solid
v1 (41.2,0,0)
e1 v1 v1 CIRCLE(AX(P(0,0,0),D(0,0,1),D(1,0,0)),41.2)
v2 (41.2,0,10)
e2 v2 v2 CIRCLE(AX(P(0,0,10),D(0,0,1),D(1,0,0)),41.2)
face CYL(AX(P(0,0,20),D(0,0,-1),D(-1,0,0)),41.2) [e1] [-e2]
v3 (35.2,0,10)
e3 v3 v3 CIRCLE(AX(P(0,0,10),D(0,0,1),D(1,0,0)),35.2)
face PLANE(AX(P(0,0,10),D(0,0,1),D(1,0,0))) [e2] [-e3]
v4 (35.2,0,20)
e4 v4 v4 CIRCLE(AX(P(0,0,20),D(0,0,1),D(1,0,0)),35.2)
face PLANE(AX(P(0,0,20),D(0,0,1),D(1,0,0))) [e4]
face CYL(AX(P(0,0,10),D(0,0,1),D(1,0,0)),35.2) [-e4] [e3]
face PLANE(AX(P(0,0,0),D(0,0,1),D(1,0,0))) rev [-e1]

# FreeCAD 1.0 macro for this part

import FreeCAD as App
import Part
import Sketcher

V = App.Vector


def add_polygon(sketch, points):
    """Adds a closed chain of lines whose ends are joined by coincident constraints."""
    first, n = sketch.GeometryCount, len(points)
    for a, b in zip(points, points[1:] + points[:1]):
        sketch.addGeometry(Part.LineSegment(App.Vector(*a, 0), App.Vector(*b, 0)), False)
    for i in range(n):
        sketch.addConstraint(Sketcher.Constraint("Coincident", first + i, 2, first + (i + 1) % n, 1))

doc = App.newDocument("Part")
body = doc.addObject("PartDesign::Body", "Body")

# Sketch on XY plane
sketch1 = body.newObject("Sketcher::SketchObject", "Sketch")
sketch1.AttachmentSupport = (doc.getObject("XY_Plane"), [""])
sketch1.MapMode = "FlatFace"
sketch1.addGeometry(Part.Circle(V(0, 0, 0), V(0, 0, 1), 41), False)
sketch1.addConstraint(Sketcher.Constraint("Coincident", 0, 3, -1, 1))
sketch1.addConstraint(Sketcher.Constraint("Diameter", 0, 82.4))
pad1 = body.newObject("PartDesign::Pad", "Pad")
pad1.Profile = sketch1
pad1.Length = 20

# Sketch on XY plane
sketch2 = body.newObject("Sketcher::SketchObject", "Sketch001")
sketch2.AttachmentSupport = (doc.getObject("XY_Plane"), [""])
sketch2.MapMode = "FlatFace"
sketch2.AttachmentOffset = App.Placement(V(0, 0, 20), App.Rotation())
add_polygon(sketch2, [(-54, 54), (-54, -54), (54, -54), (54, 54)])  # lines 0-3
sketch2.addGeometry(Part.Circle(V(0, 0, 0), V(0, 0, 1), 35), False)  # 4
sketch2.addConstraint(Sketcher.Constraint("Vertical", 0))
sketch2.addConstraint(Sketcher.Constraint("Horizontal", 1))
sketch2.addConstraint(Sketcher.Constraint("Vertical", 2))
sketch2.addConstraint(Sketcher.Constraint("Horizontal", 3))
sketch2.addConstraint(Sketcher.Constraint("Coincident", 4, 3, -1, 1))
sketch2.addConstraint(Sketcher.Constraint("Symmetric", 0, 2, 2, 2, -1, 1))
sketch2.addConstraint(Sketcher.Constraint("Equal", 3, 0))
sketch2.addConstraint(Sketcher.Constraint("Diameter", 4, 70.4))
sketch2.addConstraint(Sketcher.Constraint("DistanceX", 1, 1, 1, 2, 108.048))
pocket1 = body.newObject("PartDesign::Pocket", "Pocket")
pocket1.Profile = sketch2
pocket1.Length = 10

doc.recompute()
